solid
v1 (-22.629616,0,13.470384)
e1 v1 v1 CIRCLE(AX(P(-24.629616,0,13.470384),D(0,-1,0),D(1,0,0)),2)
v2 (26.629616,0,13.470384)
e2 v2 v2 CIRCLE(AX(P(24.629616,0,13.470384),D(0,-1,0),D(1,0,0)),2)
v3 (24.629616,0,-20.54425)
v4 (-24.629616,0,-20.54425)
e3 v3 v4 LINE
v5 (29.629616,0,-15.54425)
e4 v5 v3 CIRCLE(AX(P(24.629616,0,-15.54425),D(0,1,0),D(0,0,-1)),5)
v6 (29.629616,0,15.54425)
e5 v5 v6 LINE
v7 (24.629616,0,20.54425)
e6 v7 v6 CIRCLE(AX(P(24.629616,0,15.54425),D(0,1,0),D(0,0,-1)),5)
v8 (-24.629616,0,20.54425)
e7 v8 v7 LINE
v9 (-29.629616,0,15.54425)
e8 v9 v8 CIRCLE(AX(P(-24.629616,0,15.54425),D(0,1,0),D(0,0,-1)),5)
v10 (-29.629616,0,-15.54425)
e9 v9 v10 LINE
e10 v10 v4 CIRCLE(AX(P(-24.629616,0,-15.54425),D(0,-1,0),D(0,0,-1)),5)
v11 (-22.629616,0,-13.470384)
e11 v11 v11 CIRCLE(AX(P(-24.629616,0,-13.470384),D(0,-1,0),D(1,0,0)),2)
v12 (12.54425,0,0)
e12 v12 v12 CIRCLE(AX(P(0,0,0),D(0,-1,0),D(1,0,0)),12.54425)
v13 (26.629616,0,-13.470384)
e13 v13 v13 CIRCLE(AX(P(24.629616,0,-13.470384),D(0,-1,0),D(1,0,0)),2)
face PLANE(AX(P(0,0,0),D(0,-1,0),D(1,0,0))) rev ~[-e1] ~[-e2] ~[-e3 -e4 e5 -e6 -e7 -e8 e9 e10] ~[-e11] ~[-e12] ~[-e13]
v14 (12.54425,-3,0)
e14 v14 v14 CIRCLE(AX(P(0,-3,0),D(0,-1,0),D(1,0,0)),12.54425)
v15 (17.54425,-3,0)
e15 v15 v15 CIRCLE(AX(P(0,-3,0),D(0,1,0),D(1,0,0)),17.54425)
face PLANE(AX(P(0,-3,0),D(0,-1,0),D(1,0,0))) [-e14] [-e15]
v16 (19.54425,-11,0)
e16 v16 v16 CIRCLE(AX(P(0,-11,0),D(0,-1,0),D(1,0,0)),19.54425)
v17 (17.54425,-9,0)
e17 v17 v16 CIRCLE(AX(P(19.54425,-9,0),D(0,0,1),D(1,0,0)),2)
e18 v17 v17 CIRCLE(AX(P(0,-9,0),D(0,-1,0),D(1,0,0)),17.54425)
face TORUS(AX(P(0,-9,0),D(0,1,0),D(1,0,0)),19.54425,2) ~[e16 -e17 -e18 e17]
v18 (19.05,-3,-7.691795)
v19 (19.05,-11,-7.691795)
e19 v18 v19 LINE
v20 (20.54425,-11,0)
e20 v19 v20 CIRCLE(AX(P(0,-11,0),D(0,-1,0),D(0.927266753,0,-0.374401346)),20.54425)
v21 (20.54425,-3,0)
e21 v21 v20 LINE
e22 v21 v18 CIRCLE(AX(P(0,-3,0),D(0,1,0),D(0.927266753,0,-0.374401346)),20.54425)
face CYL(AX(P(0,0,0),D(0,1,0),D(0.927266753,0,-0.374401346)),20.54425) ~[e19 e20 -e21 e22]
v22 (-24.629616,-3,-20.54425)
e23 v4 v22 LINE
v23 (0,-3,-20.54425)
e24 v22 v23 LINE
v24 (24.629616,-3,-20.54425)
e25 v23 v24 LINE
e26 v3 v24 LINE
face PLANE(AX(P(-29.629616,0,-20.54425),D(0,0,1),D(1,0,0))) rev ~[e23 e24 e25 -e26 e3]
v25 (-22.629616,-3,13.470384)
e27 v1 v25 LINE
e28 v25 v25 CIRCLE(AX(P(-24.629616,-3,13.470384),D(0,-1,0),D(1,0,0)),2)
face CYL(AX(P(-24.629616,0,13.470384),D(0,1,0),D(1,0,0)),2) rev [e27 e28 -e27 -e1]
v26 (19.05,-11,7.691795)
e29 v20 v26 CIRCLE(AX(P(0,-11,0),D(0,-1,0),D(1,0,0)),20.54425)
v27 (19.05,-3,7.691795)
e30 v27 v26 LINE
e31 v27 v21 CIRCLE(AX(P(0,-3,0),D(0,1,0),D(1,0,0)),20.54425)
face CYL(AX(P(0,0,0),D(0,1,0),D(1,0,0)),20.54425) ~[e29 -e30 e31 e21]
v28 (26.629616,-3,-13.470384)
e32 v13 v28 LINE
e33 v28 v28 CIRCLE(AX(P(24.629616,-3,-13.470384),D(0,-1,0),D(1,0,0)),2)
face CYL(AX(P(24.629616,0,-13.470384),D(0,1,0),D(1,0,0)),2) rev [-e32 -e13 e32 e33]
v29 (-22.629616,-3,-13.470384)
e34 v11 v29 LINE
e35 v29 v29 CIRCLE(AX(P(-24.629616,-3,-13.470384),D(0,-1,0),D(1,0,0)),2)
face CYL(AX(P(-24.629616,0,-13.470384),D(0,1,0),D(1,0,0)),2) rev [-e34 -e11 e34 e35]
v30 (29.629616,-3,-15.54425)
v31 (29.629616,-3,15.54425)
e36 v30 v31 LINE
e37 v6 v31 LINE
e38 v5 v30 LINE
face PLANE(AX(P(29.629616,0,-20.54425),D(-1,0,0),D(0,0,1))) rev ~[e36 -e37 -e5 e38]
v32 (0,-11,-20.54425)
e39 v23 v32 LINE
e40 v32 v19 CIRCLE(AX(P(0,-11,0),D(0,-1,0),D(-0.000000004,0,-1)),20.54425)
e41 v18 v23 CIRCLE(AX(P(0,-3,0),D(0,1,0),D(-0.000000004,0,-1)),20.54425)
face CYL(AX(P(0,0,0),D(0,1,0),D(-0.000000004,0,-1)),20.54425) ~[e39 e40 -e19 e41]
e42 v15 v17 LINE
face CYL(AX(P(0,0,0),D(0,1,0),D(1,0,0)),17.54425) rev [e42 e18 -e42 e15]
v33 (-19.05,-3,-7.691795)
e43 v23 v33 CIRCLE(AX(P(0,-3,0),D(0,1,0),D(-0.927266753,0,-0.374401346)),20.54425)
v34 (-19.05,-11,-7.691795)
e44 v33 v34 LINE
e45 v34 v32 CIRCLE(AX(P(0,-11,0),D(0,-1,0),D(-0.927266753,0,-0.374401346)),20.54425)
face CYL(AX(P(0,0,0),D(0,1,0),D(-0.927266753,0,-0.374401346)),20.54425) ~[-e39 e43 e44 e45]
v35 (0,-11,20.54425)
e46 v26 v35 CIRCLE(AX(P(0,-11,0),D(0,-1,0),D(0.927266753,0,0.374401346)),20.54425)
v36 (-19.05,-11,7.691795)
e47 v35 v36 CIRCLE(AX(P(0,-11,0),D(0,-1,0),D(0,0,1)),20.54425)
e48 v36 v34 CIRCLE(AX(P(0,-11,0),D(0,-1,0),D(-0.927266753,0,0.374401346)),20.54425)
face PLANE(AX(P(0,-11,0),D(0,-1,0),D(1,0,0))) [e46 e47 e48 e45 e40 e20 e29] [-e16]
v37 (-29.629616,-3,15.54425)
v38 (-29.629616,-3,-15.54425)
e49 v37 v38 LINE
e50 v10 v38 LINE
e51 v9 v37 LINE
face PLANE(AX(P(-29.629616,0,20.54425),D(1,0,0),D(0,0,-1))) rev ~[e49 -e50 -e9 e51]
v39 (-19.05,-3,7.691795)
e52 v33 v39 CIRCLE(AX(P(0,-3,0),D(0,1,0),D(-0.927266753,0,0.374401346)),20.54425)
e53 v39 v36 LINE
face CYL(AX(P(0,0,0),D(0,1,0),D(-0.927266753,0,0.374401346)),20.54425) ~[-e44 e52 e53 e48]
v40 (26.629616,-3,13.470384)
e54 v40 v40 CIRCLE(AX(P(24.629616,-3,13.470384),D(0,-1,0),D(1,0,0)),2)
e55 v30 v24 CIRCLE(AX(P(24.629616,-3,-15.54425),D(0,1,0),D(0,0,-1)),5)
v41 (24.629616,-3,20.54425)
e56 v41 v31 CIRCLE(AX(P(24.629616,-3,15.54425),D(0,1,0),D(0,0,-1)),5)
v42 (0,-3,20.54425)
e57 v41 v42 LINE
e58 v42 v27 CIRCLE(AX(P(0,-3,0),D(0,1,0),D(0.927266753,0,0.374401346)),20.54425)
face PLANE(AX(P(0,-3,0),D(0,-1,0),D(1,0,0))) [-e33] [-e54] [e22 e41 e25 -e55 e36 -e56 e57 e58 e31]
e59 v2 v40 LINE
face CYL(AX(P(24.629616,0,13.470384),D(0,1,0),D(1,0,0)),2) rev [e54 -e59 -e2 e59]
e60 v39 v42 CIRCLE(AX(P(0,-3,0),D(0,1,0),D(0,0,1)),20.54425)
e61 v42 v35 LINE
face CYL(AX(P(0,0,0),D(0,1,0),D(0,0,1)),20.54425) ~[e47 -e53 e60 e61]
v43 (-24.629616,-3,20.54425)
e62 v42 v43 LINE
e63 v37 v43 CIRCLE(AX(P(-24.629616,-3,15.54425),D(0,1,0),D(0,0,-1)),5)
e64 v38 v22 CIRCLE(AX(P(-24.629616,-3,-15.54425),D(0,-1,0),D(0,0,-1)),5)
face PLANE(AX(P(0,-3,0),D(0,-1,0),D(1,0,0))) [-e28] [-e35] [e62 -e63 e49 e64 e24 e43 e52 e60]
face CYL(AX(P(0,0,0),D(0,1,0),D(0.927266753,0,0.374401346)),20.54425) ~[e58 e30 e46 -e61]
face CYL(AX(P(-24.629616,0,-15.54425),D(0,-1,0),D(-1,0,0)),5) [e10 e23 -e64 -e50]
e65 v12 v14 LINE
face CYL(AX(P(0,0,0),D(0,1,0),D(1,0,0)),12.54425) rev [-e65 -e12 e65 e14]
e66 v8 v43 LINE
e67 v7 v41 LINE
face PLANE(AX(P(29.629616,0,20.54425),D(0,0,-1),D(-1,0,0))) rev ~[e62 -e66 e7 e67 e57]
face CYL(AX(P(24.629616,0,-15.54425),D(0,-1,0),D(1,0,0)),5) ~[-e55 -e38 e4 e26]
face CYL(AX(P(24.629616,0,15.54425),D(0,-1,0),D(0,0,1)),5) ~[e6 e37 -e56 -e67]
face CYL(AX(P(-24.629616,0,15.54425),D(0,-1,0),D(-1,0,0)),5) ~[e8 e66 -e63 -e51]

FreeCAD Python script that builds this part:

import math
import FreeCAD as App
import Part
import Sketcher
from FreeCAD import Vector
Q = App.Units.Quantity


def edges_at(feature, points):
    """Names of the edges that pass closest to the given points."""
    edges = feature.Shape.Edges
    near = lambda p: min(range(len(edges)), key=lambda i: edges[i].distToShape(Part.Vertex(*p))[0])
    return sorted({f"Edge{near(p) + 1}" for p in points})


def add_polygon(sketch, points):
    """Adds a closed chain of lines whose ends are joined by coincident constraints."""
    first, n = sketch.GeometryCount, len(points)
    for a, b in zip(points, points[1:] + points[:1]):
        sketch.addGeometry(Part.LineSegment(App.Vector(*a, 0), App.Vector(*b, 0)), False)
    for i in range(n):
        sketch.addConstraint(Sketcher.Constraint("Coincident", first + i, 2, first + (i + 1) % n, 1))

doc = App.newDocument("Part")
body = doc.addObject("PartDesign::Body", "Body")

sketch1 = body.newObject("Sketcher::SketchObject", "Sketch")
sketch1.AttachmentSupport = (doc.getObject("XZ_Plane"), [""])
sketch1.MapMode = "FlatFace"
add_polygon(sketch1, [(29.6, -20.5), (29.6, 20.5), (-29.6, 20.5), (-29.6, -20.5)])
sketch1.addGeometry(Part.Circle(Vector(-24.6, -13.5, 0), Vector(0, 0, 1), 2), False)
sketch1.addGeometry(Part.Circle(Vector(-24.6, 13.5, 0), Vector(0, 0, 1), 2), False)
sketch1.addGeometry(Part.Circle(Vector(0, 0, 0), Vector(0, 0, 1), 17.5), False)
sketch1.addGeometry(Part.Circle(Vector(24.6, 13.5, 0), Vector(0, 0, 1), 2), False)
sketch1.addGeometry(Part.Circle(Vector(24.6, -13.5, 0), Vector(0, 0, 1), 2), False)
sketch1.addConstraint([
    Sketcher.Constraint("Vertical", 0),
    Sketcher.Constraint("Horizontal", 1),
    Sketcher.Constraint("Vertical", 2),
    Sketcher.Constraint("Horizontal", 3),
    Sketcher.Constraint("Coincident", 6, 3, -1, 1),
    Sketcher.Constraint("Equal", 4, 5),
    Sketcher.Constraint("Equal", 5, 7),
    Sketcher.Constraint("Equal", 7, 8),
    Sketcher.Constraint("Symmetric", 4, 3, 7, 3, -1, 1),
    Sketcher.Constraint("Symmetric", 5, 3, 8, 3, -1, 1),
    Sketcher.Constraint("Symmetric", 0, 2, 2, 2, -1, 1),
    Sketcher.Constraint("Symmetric", 5, 3, 7, 3, -2),
    Sketcher.Constraint("Diameter", 4, Q("4 mm")),
    Sketcher.Constraint("DistanceX", 7, 3, 0, 2, Q("5 mm")),
    Sketcher.Constraint("Diameter", 6, Q("35.0885 mm")),
    Sketcher.Constraint("DistanceY", 0, 1, 0, 2, Q("41.0885 mm")),
    Sketcher.Constraint("DistanceX", 1, 2, 1, 1, Q("59.259232 mm")),
    Sketcher.Constraint("DistanceY", 4, 3, 5, 3, Q("26.940768 mm")),
])
pad1 = body.newObject("PartDesign::Pad", "Pad")
pad1.Profile = sketch1
pad1.Length = 3

sketch2 = body.newObject("Sketcher::SketchObject", "Sketch001")
sketch2.AttachmentSupport = (doc.getObject("XZ_Plane"), [""])
sketch2.MapMode = "FlatFace"
sketch2.addGeometry([
    Part.Circle(Vector(0, 0, 0), Vector(0, 0, 1), 18),
    Part.Circle(Vector(0, 0, 0), Vector(0, 0, 1), 13),
], False)
sketch2.addConstraint([
    Sketcher.Constraint("Coincident", 0, 3, -1, 1),
    Sketcher.Constraint("Coincident", 1, 3, -1, 1),
    Sketcher.Constraint("Diameter", 0, Q("35.0885 mm")),
    Sketcher.Constraint("Diameter", 1, Q("25.0885 mm")),
])
pad2 = body.newObject("PartDesign::Pad", "Pad001")
pad2.Profile = sketch2
pad2.Length = 3

sketch3 = body.newObject("Sketcher::SketchObject", "Sketch002")
sketch3.AttachmentSupport = (doc.getObject("XZ_Plane"), [""])
sketch3.MapMode = "FlatFace"
sketch3.addGeometry([
    Part.ArcOfCircle(Part.Circle(Vector(0, 0, 0), Vector(0, 0, 1), 21), math.radians(22), math.radians(90)),
    Part.ArcOfCircle(Part.Circle(Vector(0, 0, 0), Vector(0, 0, 1), 21), math.radians(90), math.radians(158)),
    Part.ArcOfCircle(Part.Circle(Vector(0, 0, 0), Vector(0, 0, 1), 21), math.radians(158), math.radians(202)),
    Part.ArcOfCircle(Part.Circle(Vector(0, 0, 0), Vector(0, 0, 1), 21), math.radians(-158), math.radians(-90)),
    Part.ArcOfCircle(Part.Circle(Vector(0, 0, 0), Vector(0, 0, 1), 21), math.radians(-90), math.radians(-22)),
    Part.ArcOfCircle(Part.Circle(Vector(0, 0, 0), Vector(0, 0, 1), 21), math.radians(-22), math.radians(0)),
    Part.ArcOfCircle(Part.Circle(Vector(0, 0, 0), Vector(0, 0, 1), 21), math.radians(0), math.radians(22)),
    Part.Circle(Vector(0, 0, 0), Vector(0, 0, 1), 18),
], False)
sketch3.addConstraint([
    Sketcher.Constraint("Tangent", 0, 2, 1, 1),
    Sketcher.Constraint("Tangent", 1, 2, 2, 1),
    Sketcher.Constraint("Tangent", 2, 2, 3, 1),
    Sketcher.Constraint("Tangent", 3, 2, 4, 1),
    Sketcher.Constraint("Tangent", 4, 2, 5, 1),
    Sketcher.Constraint("Tangent", 5, 2, 6, 1),
    Sketcher.Constraint("Tangent", 6, 2, 0, 1),
    Sketcher.Constraint("Coincident", 0, 3, -1, 1),
    Sketcher.Constraint("Coincident", 2, 3, -1, 1),
    Sketcher.Constraint("Coincident", 4, 3, -1, 1),
    Sketcher.Constraint("Coincident", 7, 3, -1, 1),
    Sketcher.Constraint("PointOnObject", 0, 2, -2),
    Sketcher.Constraint("PointOnObject", 3, 2, -2),
    Sketcher.Constraint("PointOnObject", 5, 2, -1),
    Sketcher.Constraint("Horizontal", 2, 2, 4, 2),
    Sketcher.Constraint("Horizontal", 1, 2, 6, 2),
    Sketcher.Constraint("Vertical", 1, 2, 2, 2),
    Sketcher.Constraint("Diameter", 7, Q("35.0885 mm")),
    Sketcher.Constraint("DistanceX", 1, 2, -1, 1, Q("19.05 mm")),
    Sketcher.Constraint("Radius", 0, Q("20.54425 mm")),
])
pad3 = body.newObject("PartDesign::Pad", "Pad002")
pad3.Profile = sketch3
pad3.Length = 11
doc.recompute()

fillet = body.newObject("PartDesign::Fillet", "Fillet")
fillet.Base = (pad3, edges_at(pad3, [
    (-29.63, -1.5, 20.544),
    (-29.63, -1.5, -20.544),
    (29.63, -1.5, -20.544),
    (29.63, -1.5, 20.544),
]))
fillet.Radius = 5
doc.recompute()

fillet2 = body.newObject("PartDesign::Fillet", "Fillet001")
fillet2.Base = (fillet, edges_at(fillet, [(-17.544, -11, 0)]))
fillet2.Radius = 2

doc.recompute()
